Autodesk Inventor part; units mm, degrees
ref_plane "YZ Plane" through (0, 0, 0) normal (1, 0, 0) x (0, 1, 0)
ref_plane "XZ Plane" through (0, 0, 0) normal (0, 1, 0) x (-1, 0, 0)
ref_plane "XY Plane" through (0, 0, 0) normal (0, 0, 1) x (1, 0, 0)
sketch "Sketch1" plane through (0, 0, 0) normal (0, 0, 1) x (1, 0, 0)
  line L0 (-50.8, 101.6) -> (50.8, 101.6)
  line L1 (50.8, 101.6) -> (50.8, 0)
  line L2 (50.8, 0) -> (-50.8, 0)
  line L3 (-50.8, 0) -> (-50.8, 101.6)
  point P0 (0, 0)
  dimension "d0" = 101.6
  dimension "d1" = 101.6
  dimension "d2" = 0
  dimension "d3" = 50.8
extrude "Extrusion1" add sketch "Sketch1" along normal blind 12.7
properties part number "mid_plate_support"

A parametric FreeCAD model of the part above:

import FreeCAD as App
import Part
import Sketcher
from FreeCAD import Vector
Q = App.Units.Quantity

doc = App.newDocument("Part")
body = doc.addObject("PartDesign::Body", "Body")

sketch1 = body.newObject("Sketcher::SketchObject", "Sketch")
sketch1.AttachmentSupport = (doc.getObject("XY_Plane"), [""])
sketch1.MapMode = "FlatFace"
sketch1.addGeometry(Part.LineSegment(Vector(50.8, 101.6, 0), Vector(-50.8, 101.6, 0)), False)
sketch1.addGeometry(Part.LineSegment(Vector(-50.8, 101.6, 0), Vector(-50.8, 0, 0)), False)
sketch1.addGeometry(Part.LineSegment(Vector(-50.8, 0, 0), Vector(50.8, 0, 0)), False)
sketch1.addGeometry(Part.LineSegment(Vector(50.8, 0, 0), Vector(50.8, 101.6, 0)), False)
sketch1.addConstraint(Sketcher.Constraint("Coincident", 0, 2, 1, 1))
sketch1.addConstraint(Sketcher.Constraint("Coincident", 1, 2, 2, 1))
sketch1.addConstraint(Sketcher.Constraint("Coincident", 2, 2, 3, 1))
sketch1.addConstraint(Sketcher.Constraint("Coincident", 3, 2, 0, 1))
sketch1.addConstraint(Sketcher.Constraint("Horizontal", 0))
sketch1.addConstraint(Sketcher.Constraint("Vertical", 1))
sketch1.addConstraint(Sketcher.Constraint("Horizontal", 2))
sketch1.addConstraint(Sketcher.Constraint("Vertical", 3))
sketch1.addConstraint(Sketcher.Constraint("Symmetric", 1, 2, 2, 2, -1, 1))
sketch1.addConstraint(Sketcher.Constraint("Equal", 2, 1))
sketch1.addConstraint(Sketcher.Constraint("DistanceX", 0, 2, 0, 1, Q("4 in")))
pad1 = body.newObject("PartDesign::Pad", "Pad")
pad1.Profile = sketch1
pad1.Length = Q("0.5 in")

doc.recompute()
